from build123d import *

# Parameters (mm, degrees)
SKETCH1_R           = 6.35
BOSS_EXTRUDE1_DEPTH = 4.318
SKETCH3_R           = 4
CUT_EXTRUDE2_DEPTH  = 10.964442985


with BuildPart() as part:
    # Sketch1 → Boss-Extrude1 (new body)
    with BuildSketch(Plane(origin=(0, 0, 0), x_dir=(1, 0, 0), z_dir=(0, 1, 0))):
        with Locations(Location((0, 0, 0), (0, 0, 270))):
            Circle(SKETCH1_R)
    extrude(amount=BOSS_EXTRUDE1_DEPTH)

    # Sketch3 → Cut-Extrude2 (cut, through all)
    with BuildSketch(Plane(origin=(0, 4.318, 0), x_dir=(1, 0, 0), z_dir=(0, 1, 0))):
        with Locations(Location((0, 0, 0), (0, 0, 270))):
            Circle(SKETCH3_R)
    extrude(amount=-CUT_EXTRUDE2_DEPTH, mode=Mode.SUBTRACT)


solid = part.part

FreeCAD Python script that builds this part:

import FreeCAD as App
import Part
import Sketcher

V = App.Vector
Q = App.Units.Quantity

doc = App.newDocument("Part")
body = doc.addObject("PartDesign::Body", "Body")

sketch1 = body.newObject("Sketcher::SketchObject", "Sketch")
sketch1.AttachmentSupport = (doc.getObject("XZ_Plane"), [""])
sketch1.MapMode = "FlatFace"
sketch1.addGeometry(Part.Circle(V(0, 0, 0), V(0, 0, 1), 6), False)
sketch1.addConstraint([
    Sketcher.Constraint("Coincident", 0, 3, -1, 1),
    Sketcher.Constraint("Diameter", 0, Q("0.5 in")),
])
pad1 = body.newObject("PartDesign::Pad", "Pad")
pad1.Profile = sketch1
pad1.Length = Q("0.17 in")
pad1.Reversed = True

sketch2 = body.newObject("Sketcher::SketchObject", "Sketch001")
sketch2.AttachmentSupport = (doc.getObject("XZ_Plane"), [""])
sketch2.MapMode = "FlatFace"
sketch2.AttachmentOffset = App.Placement(V(0, 0, -0.17 * 25.4), App.Rotation())
sketch2.addGeometry(Part.Circle(V(0, 0, 0), V(0, 0, 1), 4), False)
sketch2.addConstraint([
    Sketcher.Constraint("Coincident", 0, 3, -1, 1),
    Sketcher.Constraint("Diameter", 0, 8.0),
])
pocket1 = body.newObject("PartDesign::Pocket", "Pocket")
pocket1.Profile = sketch2
pocket1.Type = "ThroughAll"
pocket1.Reversed = True

doc.recompute()
